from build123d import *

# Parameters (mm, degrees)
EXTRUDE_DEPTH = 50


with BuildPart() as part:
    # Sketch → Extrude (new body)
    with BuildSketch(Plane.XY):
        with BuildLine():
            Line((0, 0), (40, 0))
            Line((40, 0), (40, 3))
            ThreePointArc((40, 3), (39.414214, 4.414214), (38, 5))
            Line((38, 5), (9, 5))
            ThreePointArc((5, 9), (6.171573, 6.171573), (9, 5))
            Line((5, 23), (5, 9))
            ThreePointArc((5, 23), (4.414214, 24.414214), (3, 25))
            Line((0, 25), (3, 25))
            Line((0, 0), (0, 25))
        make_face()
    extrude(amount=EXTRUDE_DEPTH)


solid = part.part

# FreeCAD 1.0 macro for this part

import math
import FreeCAD as App
import Part
import Sketcher

V = App.Vector
Q = App.Units.Quantity

doc = App.newDocument("Part")
params = doc.addObject("Spreadsheet::Sheet", "Params")
for row, (alias, value) in enumerate([
    ("sketch1_radius", "1.999999 mm"),
    ("sketch1_radius2", "4 mm"),
    ("sketch1_width", "40 mm"),
    ("sketch1_width2", "29 mm"),
    ("sketch1_height", "14 mm"),
    ("pad1_length", "50 mm"),
], start=1):
    params.set(f"A{row}", alias)
    params.set(f"B{row}", "=" + value)
    params.setAlias(f"B{row}", alias)

body = doc.addObject("PartDesign::Body", "Body")

sketch1 = doc.addObject("Sketcher::SketchObject", "Sketch")
body.addObject(sketch1)
sketch1.AttachmentSupport = (doc.XY_Plane, [""])
sketch1.MapMode = "FlatFace"
sketch1.addGeometry(Part.LineSegment(V(0, 0, 0), V(40, 0, 0)), False)
sketch1.addGeometry(Part.LineSegment(V(40, 0, 0), V(40, 3, 0)), False)
sketch1.addGeometry(Part.ArcOfCircle(Part.Circle(V(38.000001, 3.000001, 0), V(0, 0, 1), 1.999999), math.radians(-0.000043), math.radians(90.000043)), False)
sketch1.addGeometry(Part.LineSegment(V(38, 5, 0), V(9, 5, 0)), False)
sketch1.addGeometry(Part.ArcOfCircle(Part.Circle(V(9, 9, 0), V(0, 0, 1), 4), math.radians(-179.999994), math.radians(-90.000006)), False)
sketch1.addGeometry(Part.LineSegment(V(5, 9, 0), V(5, 23, 0)), False)
sketch1.addGeometry(Part.ArcOfCircle(Part.Circle(V(3.000001, 23.000001, 0), V(0, 0, 1), 1.999999), math.radians(-0.000043), math.radians(90.000043)), False)
sketch1.addGeometry(Part.LineSegment(V(3, 25, 0), V(0, 25, 0)), False)
sketch1.addGeometry(Part.LineSegment(V(0, 25, 0), V(0, 0, 0)), False)
sketch1.addConstraint(Sketcher.Constraint("Coincident", 0, 2, 1, 1))
sketch1.addConstraint(Sketcher.Constraint("Tangent", 1, 2, 2, 1))
sketch1.addConstraint(Sketcher.Constraint("Tangent", 2, 2, 3, 1))
sketch1.addConstraint(Sketcher.Constraint("Tangent", 3, 2, 4, 2))
sketch1.addConstraint(Sketcher.Constraint("Tangent", 4, 1, 5, 1))
sketch1.addConstraint(Sketcher.Constraint("Tangent", 5, 2, 6, 1))
sketch1.addConstraint(Sketcher.Constraint("Tangent", 6, 2, 7, 1))
sketch1.addConstraint(Sketcher.Constraint("Coincident", 7, 2, 8, 1))
sketch1.addConstraint(Sketcher.Constraint("Coincident", 8, 2, 0, 1))
sketch1.addConstraint(Sketcher.Constraint("Horizontal", 0))
sketch1.addConstraint(Sketcher.Constraint("Vertical", 1))
sketch1.addConstraint(Sketcher.Constraint("Horizontal", 3))
sketch1.addConstraint(Sketcher.Constraint("Vertical", 5))
sketch1.addConstraint(Sketcher.Constraint("Horizontal", 7))
sketch1.addConstraint(Sketcher.Constraint("Vertical", 8))
sketch1.addConstraint(Sketcher.Constraint("Coincident", 8, 2, -1, 1))
sketch1.addConstraint(Sketcher.Constraint("Equal", 2, 6))
sketch1.addConstraint(Sketcher.Constraint("Equal", 7, 1))
sketch1.addConstraint(Sketcher.Constraint("Radius", 2, Q("1.999999 mm")))
sketch1.addConstraint(Sketcher.Constraint("Radius", 4, Q("4 mm")))
sketch1.addConstraint(Sketcher.Constraint("DistanceX", 0, 1, 0, 2, Q("40 mm")))
sketch1.addConstraint(Sketcher.Constraint("DistanceX", 3, 2, 3, 1, Q("29 mm")))
sketch1.addConstraint(Sketcher.Constraint("DistanceY", 5, 1, 5, 2, Q("14 mm")))
sketch1.setExpression("Constraints[18]", "Params.sketch1_radius")
sketch1.setExpression("Constraints[19]", "Params.sketch1_radius2")
sketch1.setExpression("Constraints[20]", "Params.sketch1_width")
sketch1.setExpression("Constraints[21]", "Params.sketch1_width2")
sketch1.setExpression("Constraints[22]", "Params.sketch1_height")
pad1 = doc.addObject("PartDesign::Pad", "Pad")
body.addObject(pad1)
pad1.Profile = sketch1
pad1.setExpression("Length", "Params.pad1_length")

doc.recompute()
